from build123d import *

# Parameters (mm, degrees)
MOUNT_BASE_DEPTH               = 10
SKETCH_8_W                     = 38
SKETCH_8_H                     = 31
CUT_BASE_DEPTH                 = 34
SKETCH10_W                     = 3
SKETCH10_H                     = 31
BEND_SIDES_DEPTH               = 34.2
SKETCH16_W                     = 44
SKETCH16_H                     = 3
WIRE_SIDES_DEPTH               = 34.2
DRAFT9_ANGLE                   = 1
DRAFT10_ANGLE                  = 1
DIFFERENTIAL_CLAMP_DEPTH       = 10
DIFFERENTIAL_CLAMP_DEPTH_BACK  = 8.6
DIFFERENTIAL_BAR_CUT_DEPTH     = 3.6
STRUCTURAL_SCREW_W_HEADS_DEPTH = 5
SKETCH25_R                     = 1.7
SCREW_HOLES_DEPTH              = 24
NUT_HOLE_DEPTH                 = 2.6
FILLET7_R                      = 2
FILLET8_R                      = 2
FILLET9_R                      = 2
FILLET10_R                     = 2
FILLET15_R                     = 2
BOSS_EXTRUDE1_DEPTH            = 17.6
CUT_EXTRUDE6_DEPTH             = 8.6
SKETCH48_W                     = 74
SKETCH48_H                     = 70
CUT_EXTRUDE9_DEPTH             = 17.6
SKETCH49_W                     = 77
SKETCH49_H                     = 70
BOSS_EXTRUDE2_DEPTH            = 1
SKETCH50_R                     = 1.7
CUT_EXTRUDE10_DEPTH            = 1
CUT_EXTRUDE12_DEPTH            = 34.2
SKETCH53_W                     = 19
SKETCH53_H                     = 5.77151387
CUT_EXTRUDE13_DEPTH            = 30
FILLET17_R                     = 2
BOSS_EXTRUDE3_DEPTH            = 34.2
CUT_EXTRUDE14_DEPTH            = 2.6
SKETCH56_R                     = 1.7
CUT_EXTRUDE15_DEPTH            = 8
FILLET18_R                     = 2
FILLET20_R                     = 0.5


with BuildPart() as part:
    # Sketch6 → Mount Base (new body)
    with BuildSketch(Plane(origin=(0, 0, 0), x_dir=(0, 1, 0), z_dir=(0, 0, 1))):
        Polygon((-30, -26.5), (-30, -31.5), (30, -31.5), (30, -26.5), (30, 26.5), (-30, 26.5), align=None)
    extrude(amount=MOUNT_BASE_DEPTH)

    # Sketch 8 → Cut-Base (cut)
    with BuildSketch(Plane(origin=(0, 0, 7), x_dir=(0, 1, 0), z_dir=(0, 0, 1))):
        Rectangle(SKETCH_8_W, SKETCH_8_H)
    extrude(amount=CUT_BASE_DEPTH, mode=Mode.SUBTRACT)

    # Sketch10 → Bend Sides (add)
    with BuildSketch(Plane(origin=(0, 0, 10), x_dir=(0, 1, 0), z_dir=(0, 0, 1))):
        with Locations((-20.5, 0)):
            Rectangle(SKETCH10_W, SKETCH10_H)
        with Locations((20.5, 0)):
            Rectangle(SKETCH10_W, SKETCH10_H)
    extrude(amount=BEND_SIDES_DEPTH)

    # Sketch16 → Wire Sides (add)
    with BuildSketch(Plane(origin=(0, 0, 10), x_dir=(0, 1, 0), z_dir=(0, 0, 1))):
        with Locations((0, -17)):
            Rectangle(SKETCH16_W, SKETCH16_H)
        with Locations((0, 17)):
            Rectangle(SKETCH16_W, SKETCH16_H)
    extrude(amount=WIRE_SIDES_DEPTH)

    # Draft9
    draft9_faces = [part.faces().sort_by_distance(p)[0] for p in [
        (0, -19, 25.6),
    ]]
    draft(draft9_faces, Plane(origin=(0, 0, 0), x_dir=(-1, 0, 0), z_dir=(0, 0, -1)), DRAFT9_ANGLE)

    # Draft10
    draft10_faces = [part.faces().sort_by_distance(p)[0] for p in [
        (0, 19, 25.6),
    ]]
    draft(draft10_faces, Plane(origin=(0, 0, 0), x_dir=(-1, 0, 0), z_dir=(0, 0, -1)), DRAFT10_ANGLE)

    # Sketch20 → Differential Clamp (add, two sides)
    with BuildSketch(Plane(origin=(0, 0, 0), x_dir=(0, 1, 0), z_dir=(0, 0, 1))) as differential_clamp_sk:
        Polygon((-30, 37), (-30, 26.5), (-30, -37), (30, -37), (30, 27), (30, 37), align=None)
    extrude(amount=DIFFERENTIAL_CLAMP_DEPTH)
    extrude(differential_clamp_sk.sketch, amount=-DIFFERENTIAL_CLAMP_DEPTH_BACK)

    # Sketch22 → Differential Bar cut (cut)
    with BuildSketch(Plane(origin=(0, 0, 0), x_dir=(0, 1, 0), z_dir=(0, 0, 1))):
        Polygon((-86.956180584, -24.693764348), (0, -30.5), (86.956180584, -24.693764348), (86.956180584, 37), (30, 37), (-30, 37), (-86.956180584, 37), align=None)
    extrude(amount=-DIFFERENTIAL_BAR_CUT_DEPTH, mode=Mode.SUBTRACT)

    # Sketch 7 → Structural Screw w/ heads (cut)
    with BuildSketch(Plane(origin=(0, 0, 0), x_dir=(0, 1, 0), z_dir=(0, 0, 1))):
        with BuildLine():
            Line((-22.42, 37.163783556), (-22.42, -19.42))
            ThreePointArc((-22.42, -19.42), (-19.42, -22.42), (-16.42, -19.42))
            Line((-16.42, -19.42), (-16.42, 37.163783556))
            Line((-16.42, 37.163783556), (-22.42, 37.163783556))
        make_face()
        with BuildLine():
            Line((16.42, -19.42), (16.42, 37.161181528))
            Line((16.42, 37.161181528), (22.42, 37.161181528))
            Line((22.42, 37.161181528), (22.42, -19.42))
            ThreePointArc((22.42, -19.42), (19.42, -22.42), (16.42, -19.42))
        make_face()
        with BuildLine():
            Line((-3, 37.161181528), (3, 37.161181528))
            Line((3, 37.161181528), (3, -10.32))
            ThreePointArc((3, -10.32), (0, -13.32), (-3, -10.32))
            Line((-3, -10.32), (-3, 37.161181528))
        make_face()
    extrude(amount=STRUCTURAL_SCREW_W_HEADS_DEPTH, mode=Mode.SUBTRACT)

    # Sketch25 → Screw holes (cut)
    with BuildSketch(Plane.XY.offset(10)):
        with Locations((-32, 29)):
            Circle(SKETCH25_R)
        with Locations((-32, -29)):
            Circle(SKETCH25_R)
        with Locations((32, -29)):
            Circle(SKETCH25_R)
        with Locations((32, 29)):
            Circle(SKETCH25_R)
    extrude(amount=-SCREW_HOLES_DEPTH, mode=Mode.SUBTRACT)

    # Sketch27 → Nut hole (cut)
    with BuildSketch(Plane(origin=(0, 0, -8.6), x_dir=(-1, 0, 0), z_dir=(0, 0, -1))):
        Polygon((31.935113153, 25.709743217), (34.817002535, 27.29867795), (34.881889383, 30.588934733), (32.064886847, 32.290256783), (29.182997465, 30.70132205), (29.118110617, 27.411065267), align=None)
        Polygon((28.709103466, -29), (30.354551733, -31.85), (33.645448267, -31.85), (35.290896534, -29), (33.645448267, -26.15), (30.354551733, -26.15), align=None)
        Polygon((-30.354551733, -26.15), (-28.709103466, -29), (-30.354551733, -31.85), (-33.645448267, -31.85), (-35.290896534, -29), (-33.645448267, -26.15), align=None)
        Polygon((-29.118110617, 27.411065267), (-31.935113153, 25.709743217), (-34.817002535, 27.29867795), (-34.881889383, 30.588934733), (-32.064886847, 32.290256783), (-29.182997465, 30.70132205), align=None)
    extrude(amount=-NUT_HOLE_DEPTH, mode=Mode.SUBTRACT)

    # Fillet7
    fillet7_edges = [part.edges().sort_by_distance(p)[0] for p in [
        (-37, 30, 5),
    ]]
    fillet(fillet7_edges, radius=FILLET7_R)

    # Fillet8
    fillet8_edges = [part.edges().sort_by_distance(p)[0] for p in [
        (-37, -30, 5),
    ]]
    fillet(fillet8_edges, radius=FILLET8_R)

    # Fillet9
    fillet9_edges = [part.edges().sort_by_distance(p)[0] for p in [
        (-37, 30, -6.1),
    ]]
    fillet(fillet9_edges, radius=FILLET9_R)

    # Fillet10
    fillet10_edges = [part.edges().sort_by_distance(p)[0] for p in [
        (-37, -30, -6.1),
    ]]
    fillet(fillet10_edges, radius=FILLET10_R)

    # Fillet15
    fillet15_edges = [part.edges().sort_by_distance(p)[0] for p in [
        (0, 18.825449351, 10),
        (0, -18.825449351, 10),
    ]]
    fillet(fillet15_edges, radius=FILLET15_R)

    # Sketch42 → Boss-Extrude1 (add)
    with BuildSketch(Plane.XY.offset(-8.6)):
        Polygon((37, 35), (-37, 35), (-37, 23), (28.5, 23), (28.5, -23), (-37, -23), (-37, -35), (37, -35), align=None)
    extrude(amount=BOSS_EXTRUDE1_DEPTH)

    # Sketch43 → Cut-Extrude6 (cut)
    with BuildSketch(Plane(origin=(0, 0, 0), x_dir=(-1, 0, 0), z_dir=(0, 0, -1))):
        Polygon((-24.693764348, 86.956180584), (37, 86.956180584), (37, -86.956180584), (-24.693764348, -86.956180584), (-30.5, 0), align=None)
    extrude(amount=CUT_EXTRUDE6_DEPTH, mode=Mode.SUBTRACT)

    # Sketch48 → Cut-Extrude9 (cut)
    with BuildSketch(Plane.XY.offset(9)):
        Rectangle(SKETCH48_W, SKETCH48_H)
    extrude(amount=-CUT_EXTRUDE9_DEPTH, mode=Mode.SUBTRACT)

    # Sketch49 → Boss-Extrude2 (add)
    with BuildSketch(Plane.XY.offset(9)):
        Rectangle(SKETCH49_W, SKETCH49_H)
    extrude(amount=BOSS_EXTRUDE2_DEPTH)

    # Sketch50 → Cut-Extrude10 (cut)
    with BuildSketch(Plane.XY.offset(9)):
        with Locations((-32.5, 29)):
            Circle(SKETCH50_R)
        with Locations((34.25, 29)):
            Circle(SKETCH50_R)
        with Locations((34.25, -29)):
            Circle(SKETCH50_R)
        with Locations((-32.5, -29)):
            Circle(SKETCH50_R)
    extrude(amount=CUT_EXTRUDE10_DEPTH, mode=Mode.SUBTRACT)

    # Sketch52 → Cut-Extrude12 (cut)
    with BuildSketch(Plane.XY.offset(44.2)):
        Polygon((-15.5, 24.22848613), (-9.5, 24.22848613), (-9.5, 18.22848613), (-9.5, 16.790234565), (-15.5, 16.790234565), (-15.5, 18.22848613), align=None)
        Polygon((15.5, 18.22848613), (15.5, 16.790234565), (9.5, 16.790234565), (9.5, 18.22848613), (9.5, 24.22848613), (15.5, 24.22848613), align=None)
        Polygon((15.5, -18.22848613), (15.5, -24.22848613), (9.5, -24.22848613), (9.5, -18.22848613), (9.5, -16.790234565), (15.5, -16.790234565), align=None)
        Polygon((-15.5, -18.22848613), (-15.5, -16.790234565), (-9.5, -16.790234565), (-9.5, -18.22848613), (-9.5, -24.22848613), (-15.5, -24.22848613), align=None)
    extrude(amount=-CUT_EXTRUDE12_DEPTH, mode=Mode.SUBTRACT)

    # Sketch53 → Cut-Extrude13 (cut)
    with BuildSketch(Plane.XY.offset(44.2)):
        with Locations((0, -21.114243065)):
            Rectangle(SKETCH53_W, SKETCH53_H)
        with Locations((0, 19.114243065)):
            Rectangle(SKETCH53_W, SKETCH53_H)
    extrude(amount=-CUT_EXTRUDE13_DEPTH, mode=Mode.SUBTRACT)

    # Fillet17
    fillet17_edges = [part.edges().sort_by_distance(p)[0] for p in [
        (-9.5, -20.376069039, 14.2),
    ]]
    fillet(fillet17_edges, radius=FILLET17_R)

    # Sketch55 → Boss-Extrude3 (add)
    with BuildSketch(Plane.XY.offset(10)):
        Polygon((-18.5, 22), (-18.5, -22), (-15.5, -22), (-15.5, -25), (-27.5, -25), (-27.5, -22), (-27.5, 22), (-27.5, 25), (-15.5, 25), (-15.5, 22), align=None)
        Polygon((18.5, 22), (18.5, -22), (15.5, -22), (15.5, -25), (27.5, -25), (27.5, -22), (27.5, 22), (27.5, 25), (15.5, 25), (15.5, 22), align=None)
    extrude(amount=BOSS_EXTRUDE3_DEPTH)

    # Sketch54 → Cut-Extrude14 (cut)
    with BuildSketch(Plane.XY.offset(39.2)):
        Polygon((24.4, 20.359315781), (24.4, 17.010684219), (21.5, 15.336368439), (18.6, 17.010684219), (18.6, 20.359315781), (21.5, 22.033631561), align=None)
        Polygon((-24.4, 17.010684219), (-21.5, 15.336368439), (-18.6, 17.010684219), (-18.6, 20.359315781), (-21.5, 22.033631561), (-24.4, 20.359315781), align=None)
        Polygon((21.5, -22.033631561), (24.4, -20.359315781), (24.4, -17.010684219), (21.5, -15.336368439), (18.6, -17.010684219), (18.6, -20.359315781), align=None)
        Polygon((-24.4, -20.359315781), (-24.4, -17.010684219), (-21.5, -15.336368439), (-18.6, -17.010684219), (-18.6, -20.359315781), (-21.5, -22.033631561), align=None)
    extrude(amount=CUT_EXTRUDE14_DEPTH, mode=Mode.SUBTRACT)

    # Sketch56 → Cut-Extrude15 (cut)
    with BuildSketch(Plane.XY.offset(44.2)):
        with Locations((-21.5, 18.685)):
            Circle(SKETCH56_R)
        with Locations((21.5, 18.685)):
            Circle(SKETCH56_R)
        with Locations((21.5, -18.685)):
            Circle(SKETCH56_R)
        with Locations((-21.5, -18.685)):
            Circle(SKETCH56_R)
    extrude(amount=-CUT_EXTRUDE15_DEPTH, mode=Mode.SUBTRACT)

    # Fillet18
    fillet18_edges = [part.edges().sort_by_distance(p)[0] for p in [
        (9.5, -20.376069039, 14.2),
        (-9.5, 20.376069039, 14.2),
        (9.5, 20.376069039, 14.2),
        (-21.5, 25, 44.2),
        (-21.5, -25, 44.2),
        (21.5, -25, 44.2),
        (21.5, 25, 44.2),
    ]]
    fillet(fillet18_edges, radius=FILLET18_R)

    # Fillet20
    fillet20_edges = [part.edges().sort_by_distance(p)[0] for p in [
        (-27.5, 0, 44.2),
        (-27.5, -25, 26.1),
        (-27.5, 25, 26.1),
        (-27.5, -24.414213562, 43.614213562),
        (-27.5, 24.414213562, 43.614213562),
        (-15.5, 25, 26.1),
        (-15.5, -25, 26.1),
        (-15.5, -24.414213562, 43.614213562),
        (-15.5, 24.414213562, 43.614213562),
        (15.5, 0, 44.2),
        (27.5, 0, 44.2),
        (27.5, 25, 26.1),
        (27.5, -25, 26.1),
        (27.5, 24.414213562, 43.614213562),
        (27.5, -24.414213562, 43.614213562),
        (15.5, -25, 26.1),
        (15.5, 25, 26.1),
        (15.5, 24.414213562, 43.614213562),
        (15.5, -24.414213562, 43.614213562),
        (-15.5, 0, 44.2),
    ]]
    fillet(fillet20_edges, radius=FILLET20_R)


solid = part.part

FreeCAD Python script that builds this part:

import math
import FreeCAD as App
import Part
import Sketcher

V = App.Vector
Q = App.Units.Quantity


def edges_at(feature, points):
    """Names of the edges that pass closest to the given points."""
    edges = feature.Shape.Edges
    near = lambda p: min(range(len(edges)), key=lambda i: edges[i].distToShape(Part.Vertex(*p))[0])
    return sorted({f"Edge{near(p) + 1}" for p in points})


def faces_at(feature, points):
    """Names of the faces that lie closest to the given points."""
    faces = feature.Shape.Faces
    near = lambda p: min(range(len(faces)), key=lambda i: faces[i].distToShape(Part.Vertex(*p))[0])
    return sorted({f"Face{near(p) + 1}" for p in points})

doc = App.newDocument("Part")
body = doc.addObject("PartDesign::Body", "Body")

sketch1 = doc.addObject("Sketcher::SketchObject", "Sketch")
body.addObject(sketch1)
sketch1.AttachmentSupport = (doc.XY_Plane, [""])
sketch1.MapMode = "FlatFace"
sketch1.addGeometry([
    Part.LineSegment(V(32, -30, 0), V(32, 30, 0)),
    Part.LineSegment(V(32, 30, 0), V(-26, 30, 0)),
    Part.LineSegment(V(-26, 30, 0), V(-26, -30, 0)),
    Part.LineSegment(V(-26, -30, 0), V(32, -30, 0)),
], False)
sketch1.addConstraint([
    Sketcher.Constraint("Coincident", 0, 2, 1, 1),
    Sketcher.Constraint("Coincident", 1, 2, 2, 1),
    Sketcher.Constraint("Coincident", 2, 2, 3, 1),
    Sketcher.Constraint("Coincident", 3, 2, 0, 1),
    Sketcher.Constraint("Vertical", 0),
    Sketcher.Constraint("Horizontal", 1),
    Sketcher.Constraint("Vertical", 2),
    Sketcher.Constraint("Horizontal", 3),
    Sketcher.Constraint("DistanceX", 1, 2, 1, 1, 58.0),
    Sketcher.Constraint("DistanceY", 0, 1, 0, 2, 60.0),
    Sketcher.Constraint("DistanceY", -1, 1, 0, 2, 30.0),
    Sketcher.Constraint("DistanceX", -1, 1, 0, 2, 31.5),
])
pad1 = doc.addObject("PartDesign::Pad", "Pad")
body.addObject(pad1)
pad1.Profile = sketch1
pad1.Length = 10

sketch2 = doc.addObject("Sketcher::SketchObject", "Sketch001")
body.addObject(sketch2)
sketch2.AttachmentSupport = (doc.XY_Plane, [""])
sketch2.MapMode = "FlatFace"
sketch2.AttachmentOffset = App.Placement(V(0, 0, 7), App.Rotation())
sketch2.addGeometry([
    Part.LineSegment(V(-16, -19, 0), V(16, -19, 0)),
    Part.LineSegment(V(16, -19, 0), V(16, 19, 0)),
    Part.LineSegment(V(16, 19, 0), V(-16, 19, 0)),
    Part.LineSegment(V(-16, 19, 0), V(-16, -19, 0)),
], False)
sketch2.addConstraint([
    Sketcher.Constraint("Coincident", 0, 2, 1, 1),
    Sketcher.Constraint("Coincident", 1, 2, 2, 1),
    Sketcher.Constraint("Coincident", 2, 2, 3, 1),
    Sketcher.Constraint("Coincident", 3, 2, 0, 1),
    Sketcher.Constraint("Horizontal", 0),
    Sketcher.Constraint("Vertical", 1),
    Sketcher.Constraint("Horizontal", 2),
    Sketcher.Constraint("Vertical", 3),
    Sketcher.Constraint("Symmetric", 0, 2, 2, 2, -1, 1),
    Sketcher.Constraint("DistanceX", 0, 1, 0, 2, 31.0),
    Sketcher.Constraint("DistanceY", 1, 1, 1, 2, 38.0),
])
pocket1 = doc.addObject("PartDesign::Pocket", "Pocket")
body.addObject(pocket1)
pocket1.Profile = sketch2
pocket1.Length = 34
pocket1.Reversed = True

sketch3 = doc.addObject("Sketcher::SketchObject", "Sketch002")
body.addObject(sketch3)
sketch3.AttachmentSupport = (doc.XY_Plane, [""])
sketch3.MapMode = "FlatFace"
sketch3.AttachmentOffset = App.Placement(V(0, 0, 10), App.Rotation())
sketch3.addGeometry([
    Part.LineSegment(V(-15.5, -22, 0), V(15.5, -22, 0)),
    Part.LineSegment(V(15.5, -22, 0), V(15.5, -19, 0)),
    Part.LineSegment(V(15.5, -19, 0), V(-15.5, -19, 0)),
    Part.LineSegment(V(-15.5, -19, 0), V(-15.5, -22, 0)),
    Part.LineSegment(V(-15.5, 19, 0), V(15.5, 19, 0)),
    Part.LineSegment(V(15.5, 19, 0), V(15.5, 22, 0)),
    Part.LineSegment(V(15.5, 22, 0), V(-15.5, 22, 0)),
    Part.LineSegment(V(-15.5, 22, 0), V(-15.5, 19, 0)),
], False)
sketch3.addConstraint([
    Sketcher.Constraint("Coincident", 0, 2, 1, 1),
    Sketcher.Constraint("Coincident", 1, 2, 2, 1),
    Sketcher.Constraint("Coincident", 2, 2, 3, 1),
    Sketcher.Constraint("Coincident", 3, 2, 0, 1),
    Sketcher.Constraint("Coincident", 4, 2, 5, 1),
    Sketcher.Constraint("Coincident", 5, 2, 6, 1),
    Sketcher.Constraint("Coincident", 6, 2, 7, 1),
    Sketcher.Constraint("Coincident", 7, 2, 4, 1),
    Sketcher.Constraint("Horizontal", 0),
    Sketcher.Constraint("Vertical", 1),
    Sketcher.Constraint("Horizontal", 2),
    Sketcher.Constraint("Vertical", 3),
    Sketcher.Constraint("Horizontal", 4),
    Sketcher.Constraint("Vertical", 5),
    Sketcher.Constraint("Horizontal", 6),
    Sketcher.Constraint("Vertical", 7),
    Sketcher.Constraint("Symmetric", 2, 2, 4, 2, -1, 1),
    Sketcher.Constraint("Symmetric", 0, 2, 6, 2, -1, 1),
    Sketcher.Constraint("Vertical", 1, 2, 4, 2),
    Sketcher.Constraint("DistanceX", 0, 1, 0, 2, 31.0),
    Sketcher.Constraint("DistanceY", 1, 1, 1, 2, 3.0),
    Sketcher.Constraint("DistanceY", 0, 2, -1, 1, 22.0),
])
pad2 = doc.addObject("PartDesign::Pad", "Pad001")
body.addObject(pad2)
pad2.Profile = sketch3
pad2.Length = 34.2

sketch4 = doc.addObject("Sketcher::SketchObject", "Sketch003")
body.addObject(sketch4)
sketch4.AttachmentSupport = (doc.XY_Plane, [""])
sketch4.MapMode = "FlatFace"
sketch4.AttachmentOffset = App.Placement(V(0, 0, 10), App.Rotation())
sketch4.addGeometry([
    Part.LineSegment(V(15.5, -22, 0), V(18.5, -22, 0)),
    Part.LineSegment(V(18.5, -22, 0), V(18.5, 22, 0)),
    Part.LineSegment(V(18.5, 22, 0), V(15.5, 22, 0)),
    Part.LineSegment(V(15.5, 22, 0), V(15.5, -22, 0)),
    Part.LineSegment(V(-18.5, -22, 0), V(-15.5, -22, 0)),
    Part.LineSegment(V(-15.5, -22, 0), V(-15.5, 22, 0)),
    Part.LineSegment(V(-15.5, 22, 0), V(-18.5, 22, 0)),
    Part.LineSegment(V(-18.5, 22, 0), V(-18.5, -22, 0)),
], False)
sketch4.addConstraint([
    Sketcher.Constraint("Coincident", 0, 2, 1, 1),
    Sketcher.Constraint("Coincident", 1, 2, 2, 1),
    Sketcher.Constraint("Coincident", 2, 2, 3, 1),
    Sketcher.Constraint("Coincident", 3, 2, 0, 1),
    Sketcher.Constraint("Coincident", 4, 2, 5, 1),
    Sketcher.Constraint("Coincident", 5, 2, 6, 1),
    Sketcher.Constraint("Coincident", 6, 2, 7, 1),
    Sketcher.Constraint("Coincident", 7, 2, 4, 1),
    Sketcher.Constraint("Horizontal", 0),
    Sketcher.Constraint("Vertical", 1),
    Sketcher.Constraint("Horizontal", 2),
    Sketcher.Constraint("Vertical", 3),
    Sketcher.Constraint("Horizontal", 4),
    Sketcher.Constraint("Vertical", 5),
    Sketcher.Constraint("Horizontal", 6),
    Sketcher.Constraint("Vertical", 7),
    Sketcher.Constraint("Symmetric", 2, 2, 4, 2, -1, 1),
    Sketcher.Constraint("Symmetric", 0, 2, 6, 2, -1, 1),
    Sketcher.Constraint("Horizontal", 3, 2, 4, 2),
    Sketcher.Constraint("DistanceX", 0, 1, 0, 2, 3.0),
    Sketcher.Constraint("DistanceY", 1, 1, 1, 2, 44.0),
    Sketcher.Constraint("DistanceX", 4, 2, 3, 2, 31.0),
])
pad3 = doc.addObject("PartDesign::Pad", "Pad002")
body.addObject(pad3)
pad3.Profile = sketch4
pad3.Length = 34.2
doc.recompute()

draft = doc.addObject("PartDesign::Draft", "Draft")
body.addObject(draft)
draft.Base = (pad3, faces_at(pad3, [(0, -19, 25.6)]))
draft.NeutralPlane = (doc.XY_Plane, [""])
draft.Angle = 1
draft.Reversed = True
doc.recompute()

draft2 = doc.addObject("PartDesign::Draft", "Draft001")
body.addObject(draft2)
draft2.Base = (draft, faces_at(draft, [(0, 19, 25.6)]))
draft2.NeutralPlane = (doc.XY_Plane, [""])
draft2.Angle = 1
draft2.Reversed = True

sketch5 = doc.addObject("Sketcher::SketchObject", "Sketch004")
body.addObject(sketch5)
sketch5.AttachmentSupport = (doc.XY_Plane, [""])
sketch5.MapMode = "FlatFace"
sketch5.addGeometry([
    Part.LineSegment(V(-37, -30, 0), V(37, -30, 0)),
    Part.LineSegment(V(37, -30, 0), V(37, 30, 0)),
    Part.LineSegment(V(37, 30, 0), V(-37, 30, 0)),
    Part.LineSegment(V(-37, 30, 0), V(-37, -30, 0)),
], False)
sketch5.addConstraint([
    Sketcher.Constraint("Coincident", 0, 2, 1, 1),
    Sketcher.Constraint("Coincident", 1, 2, 2, 1),
    Sketcher.Constraint("Coincident", 2, 2, 3, 1),
    Sketcher.Constraint("Coincident", 3, 2, 0, 1),
    Sketcher.Constraint("Horizontal", 0),
    Sketcher.Constraint("Vertical", 1),
    Sketcher.Constraint("Horizontal", 2),
    Sketcher.Constraint("Vertical", 3),
    Sketcher.Constraint("Symmetric", 0, 2, 2, 2, -1, 1),
    Sketcher.Constraint("DistanceX", 0, 1, 0, 2, 74.0),
    Sketcher.Constraint("DistanceY", 1, 1, 1, 2, 60.0),
])
pad4 = doc.addObject("PartDesign::Pad", "Pad003")
body.addObject(pad4)
pad4.Profile = sketch5
pad4.Type = "TwoLengths"
pad4.Length = 10
pad4.Length2 = 8.6

sketch6 = doc.addObject("Sketcher::SketchObject", "Sketch005")
body.addObject(sketch6)
sketch6.AttachmentSupport = (doc.XY_Plane, [""])
sketch6.MapMode = "FlatFace"
sketch6.addGeometry([
    Part.LineSegment(V(25, -87, 0), V(30, 0, 0)),
    Part.LineSegment(V(30, 0, 0), V(25, 87, 0)),
    Part.LineSegment(V(25, 87, 0), V(-37, 87, 0)),
    Part.LineSegment(V(-37, 87, 0), V(-37, -87, 0)),
    Part.LineSegment(V(-37, -87, 0), V(25, -87, 0)),
], False)
sketch6.addConstraint([
    Sketcher.Constraint("Coincident", 0, 2, 1, 1),
    Sketcher.Constraint("Coincident", 1, 2, 2, 1),
    Sketcher.Constraint("Coincident", 2, 2, 3, 1),
    Sketcher.Constraint("Coincident", 3, 2, 4, 1),
    Sketcher.Constraint("Coincident", 4, 2, 0, 1),
    Sketcher.Constraint("Horizontal", 2),
    Sketcher.Constraint("Vertical", 3),
    Sketcher.Constraint("Horizontal", 4),
    Sketcher.Constraint("Symmetric", 1, 2, 4, 2, -1),
    Sketcher.Constraint("PointOnObject", 0, 2, -1),
    Sketcher.Constraint("DistanceX", 2, 2, -1, 1, 37.0),
    Sketcher.Constraint("DistanceX", -1, 1, 0, 2, 30.5),
    Sketcher.Constraint("DistanceY", 3, 2, 3, 1, 173.912361),
    Sketcher.Constraint("Distance", 0, 87.149812),
])
pocket2 = doc.addObject("PartDesign::Pocket", "Pocket001")
body.addObject(pocket2)
pocket2.Profile = sketch6
pocket2.Length = 3.6

sketch7 = doc.addObject("Sketcher::SketchObject", "Sketch006")
body.addObject(sketch7)
sketch7.AttachmentSupport = (doc.XY_Plane, [""])
sketch7.MapMode = "FlatFace"
sketch7.addGeometry([
    Part.LineSegment(V(-37.2, -22.4, 0), V(19.4, -22.4, 0)),
    Part.ArcOfCircle(Part.Circle(V(19.4, -19.4, 0), V(0, 0, 1), 3), math.radians(-90), math.radians(90)),
    Part.LineSegment(V(19.4, -16.4, 0), V(-37.2, -16.4, 0)),
    Part.LineSegment(V(-37.2, -16.4, 0), V(-37.2, -22.4, 0)),
    Part.LineSegment(V(-37.2, 16.4, 0), V(19.4, 16.4, 0)),
    Part.ArcOfCircle(Part.Circle(V(19.4, 19.4, 0), V(0, 0, 1), 3), math.radians(-90), math.radians(90)),
    Part.LineSegment(V(19.4, 22.4, 0), V(-37.2, 22.4, 0)),
    Part.LineSegment(V(-37.2, 22.4, 0), V(-37.2, 16.4, 0)),
    Part.LineSegment(V(-37.2, 3, 0), V(-37.2, -3, 0)),
    Part.LineSegment(V(-37.2, -3, 0), V(10.3, -3, 0)),
    Part.ArcOfCircle(Part.Circle(V(10.3, 0, 0), V(0, 0, 1), 3), math.radians(-90), math.radians(90)),
    Part.LineSegment(V(10.3, 3, 0), V(-37.2, 3, 0)),
], False)
sketch7.addConstraint([
    Sketcher.Constraint("Tangent", 0, 2, 1, 1),
    Sketcher.Constraint("Tangent", 1, 2, 2, 1),
    Sketcher.Constraint("Coincident", 2, 2, 3, 1),
    Sketcher.Constraint("Coincident", 3, 2, 0, 1),
    Sketcher.Constraint("Tangent", 4, 2, 5, 1),
    Sketcher.Constraint("Tangent", 5, 2, 6, 1),
    Sketcher.Constraint("Coincident", 6, 2, 7, 1),
    Sketcher.Constraint("Coincident", 7, 2, 4, 1),
    Sketcher.Constraint("Coincident", 8, 2, 9, 1),
    Sketcher.Constraint("Tangent", 9, 2, 10, 1),
    Sketcher.Constraint("Tangent", 10, 2, 11, 1),
    Sketcher.Constraint("Coincident", 11, 2, 8, 1),
    Sketcher.Constraint("Horizontal", 0),
    Sketcher.Constraint("Horizontal", 2),
    Sketcher.Constraint("Vertical", 3),
    Sketcher.Constraint("Horizontal", 4),
    Sketcher.Constraint("Horizontal", 6),
    Sketcher.Constraint("Vertical", 7),
    Sketcher.Constraint("Vertical", 8),
    Sketcher.Constraint("Horizontal", 9),
    Sketcher.Constraint("Horizontal", 11),
    Sketcher.Constraint("Equal", 1, 5),
    Sketcher.Constraint("Equal", 5, 10),
    Sketcher.Constraint("Symmetric", 1, 3, 5, 3, -1),
    Sketcher.Constraint("PointOnObject", 10, 3, -1),
    Sketcher.Constraint("Vertical", 7, 2, 8, 2),
    Sketcher.Constraint("Radius", 1, 3.0),
    Sketcher.Constraint("DistanceX", 10, 3, 1, 3, 9.1),
    Sketcher.Constraint("DistanceX", -1, 1, 1, 3, 19.42),
    Sketcher.Constraint("DistanceY", 1, 3, -1, 1, 19.42),
    Sketcher.Constraint("DistanceX", 4, 1, 4, 2, 56.581182),
    Sketcher.Constraint("DistanceX", 0, 1, 0, 2, 56.583784),
])
pocket3 = doc.addObject("PartDesign::Pocket", "Pocket002")
body.addObject(pocket3)
pocket3.Profile = sketch7
pocket3.Length = 5
pocket3.Reversed = True

sketch8 = doc.addObject("Sketcher::SketchObject", "Sketch007")
body.addObject(sketch8)
sketch8.AttachmentSupport = (doc.XY_Plane, [""])
sketch8.MapMode = "FlatFace"
sketch8.AttachmentOffset = App.Placement(V(0, 0, 10), App.Rotation())
sketch8.addGeometry([
    Part.Circle(V(-32, 29, 0), V(0, 0, 1), 1.7),
    Part.Circle(V(-32, -29, 0), V(0, 0, 1), 1.7),
    Part.Circle(V(32, -29, 0), V(0, 0, 1), 1.7),
    Part.Circle(V(32, 29, 0), V(0, 0, 1), 1.7),
], False)
sketch8.addConstraint([
    Sketcher.Constraint("Equal", 0, 1),
    Sketcher.Constraint("Equal", 1, 2),
    Sketcher.Constraint("Equal", 2, 3),
    Sketcher.Constraint("Symmetric", 0, 3, 2, 3, -1, 1),
    Sketcher.Constraint("Symmetric", 1, 3, 3, 3, -1, 1),
    Sketcher.Constraint("Symmetric", 1, 3, 2, 3, -2),
    Sketcher.Constraint("Diameter", 0, 3.4),
    Sketcher.Constraint("DistanceX", 0, 3, -1, 1, 32.0),
    Sketcher.Constraint("DistanceY", -1, 1, 0, 3, 29.0),
])
pocket4 = doc.addObject("PartDesign::Pocket", "Pocket003")
body.addObject(pocket4)
pocket4.Profile = sketch8
pocket4.Length = 24

sketch9 = doc.addObject("Sketcher::SketchObject", "Sketch008")
body.addObject(sketch9)
sketch9.AttachmentSupport = (doc.XY_Plane, [""])
sketch9.MapMode = "FlatFace"
sketch9.AttachmentOffset = App.Placement(V(0, 0, -8.6), App.Rotation())
sketch9.addGeometry([
    Part.LineSegment(V(-31.9, 25.7, 0), V(-34.8, 27.3, 0)),
    Part.LineSegment(V(-34.8, 27.3, 0), V(-34.9, 30.6, 0)),
    Part.LineSegment(V(-34.9, 30.6, 0), V(-32.1, 32.3, 0)),
    Part.LineSegment(V(-32.1, 32.3, 0), V(-29.2, 30.7, 0)),
    Part.LineSegment(V(-29.2, 30.7, 0), V(-29.1, 27.4, 0)),
    Part.LineSegment(V(-29.1, 27.4, 0), V(-31.9, 25.7, 0)),
    Part.LineSegment(V(-28.7, -29, 0), V(-30.4, -31.9, 0)),
    Part.LineSegment(V(-30.4, -31.9, 0), V(-33.6, -31.9, 0)),
    Part.LineSegment(V(-33.6, -31.9, 0), V(-35.3, -29, 0)),
    Part.LineSegment(V(-35.3, -29, 0), V(-33.6, -26.1, 0)),
    Part.LineSegment(V(-33.6, -26.1, 0), V(-30.4, -26.1, 0)),
    Part.LineSegment(V(-30.4, -26.1, 0), V(-28.7, -29, 0)),
    Part.LineSegment(V(28.7, -29, 0), V(30.4, -26.1, 0)),
    Part.LineSegment(V(30.4, -26.1, 0), V(33.6, -26.1, 0)),
    Part.LineSegment(V(33.6, -26.1, 0), V(35.3, -29, 0)),
    Part.LineSegment(V(35.3, -29, 0), V(33.6, -31.9, 0)),
    Part.LineSegment(V(33.6, -31.9, 0), V(30.4, -31.9, 0)),
    Part.LineSegment(V(30.4, -31.9, 0), V(28.7, -29, 0)),
    Part.LineSegment(V(31.9, 25.7, 0), V(29.1, 27.4, 0)),
    Part.LineSegment(V(29.1, 27.4, 0), V(29.2, 30.7, 0)),
    Part.LineSegment(V(29.2, 30.7, 0), V(32.1, 32.3, 0)),
    Part.LineSegment(V(32.1, 32.3, 0), V(34.9, 30.6, 0)),
    Part.LineSegment(V(34.9, 30.6, 0), V(34.8, 27.3, 0)),
    Part.LineSegment(V(34.8, 27.3, 0), V(31.9, 25.7, 0)),
], False)
sketch9.addConstraint([
    Sketcher.Constraint("Coincident", 0, 2, 1, 1),
    Sketcher.Constraint("Coincident", 1, 2, 2, 1),
    Sketcher.Constraint("Coincident", 2, 2, 3, 1),
    Sketcher.Constraint("Coincident", 3, 2, 4, 1),
    Sketcher.Constraint("Coincident", 4, 2, 5, 1),
    Sketcher.Constraint("Coincident", 5, 2, 0, 1),
    Sketcher.Constraint("Coincident", 6, 2, 7, 1),
    Sketcher.Constraint("Coincident", 7, 2, 8, 1),
    Sketcher.Constraint("Coincident", 8, 2, 9, 1),
    Sketcher.Constraint("Coincident", 9, 2, 10, 1),
    Sketcher.Constraint("Coincident", 10, 2, 11, 1),
    Sketcher.Constraint("Coincident", 11, 2, 6, 1),
    Sketcher.Constraint("Coincident", 12, 2, 13, 1),
    Sketcher.Constraint("Coincident", 13, 2, 14, 1),
    Sketcher.Constraint("Coincident", 14, 2, 15, 1),
    Sketcher.Constraint("Coincident", 15, 2, 16, 1),
    Sketcher.Constraint("Coincident", 16, 2, 17, 1),
    Sketcher.Constraint("Coincident", 17, 2, 12, 1),
    Sketcher.Constraint("Coincident", 18, 2, 19, 1),
    Sketcher.Constraint("Coincident", 19, 2, 20, 1),
    Sketcher.Constraint("Coincident", 20, 2, 21, 1),
    Sketcher.Constraint("Coincident", 21, 2, 22, 1),
    Sketcher.Constraint("Coincident", 22, 2, 23, 1),
    Sketcher.Constraint("Coincident", 23, 2, 18, 1),
    Sketcher.Constraint("Horizontal", 7),
    Sketcher.Constraint("Horizontal", 10),
    Sketcher.Constraint("Horizontal", 13),
    Sketcher.Constraint("Horizontal", 16),
    Sketcher.Constraint("Symmetric", 10, 2, 12, 2, -2),
    Sketcher.Constraint("Symmetric", 8, 2, 14, 2, -2),
    Sketcher.Constraint("Symmetric", 7, 2, 15, 2, -2),
    Sketcher.Constraint("Symmetric", 11, 2, 17, 2, -2),
    Sketcher.Constraint("Symmetric", 4, 2, 18, 2, -2),
    Sketcher.Constraint("Symmetric", 3, 2, 19, 2, -2),
    Sketcher.Constraint("Symmetric", 2, 2, 20, 2, -2),
    Sketcher.Constraint("Symmetric", 1, 2, 21, 2, -2),
    Sketcher.Constraint("Symmetric", 0, 2, 22, 2, -2),
    Sketcher.Constraint("Symmetric", 5, 2, 23, 2, -2),
    Sketcher.Constraint("Parallel", 0, 3),
    Sketcher.Constraint("Parallel", 1, 4),
    Sketcher.Constraint("Parallel", 2, 5),
    Sketcher.Constraint("Parallel", 6, 9),
    Sketcher.Constraint("Parallel", 8, 11),
    Sketcher.Constraint("Parallel", 9, 12),
    Sketcher.Constraint("Parallel", 11, 14),
    Sketcher.Constraint("Parallel", 14, 17),
    Sketcher.Constraint("Horizontal", 8, 2, 11, 2),
    Sketcher.Constraint("Vertical", 7, 2, 9, 2),
    Sketcher.Constraint("Equal", 0, 1),
    Sketcher.Constraint("Equal", 1, 2),
    Sketcher.Constraint("Equal", 2, 3),
    Sketcher.Constraint("Equal", 5, 6),
    Sketcher.Constraint("Angle", 6, Q("-120 deg")),
    Sketcher.Constraint("DistanceY", 8, 2, -1, 1, 29.0),
    Sketcher.Constraint("DistanceX", 9, 2, 12, 2, 64.0),
    Sketcher.Constraint("DistanceY", 7, 2, 9, 2, 5.7),
    Sketcher.Constraint("DistanceX", 7, 2, 7, 1, 3.290897),
    Sketcher.Constraint("DistanceX", 1, 2, -1, 1, 34.881889),
    Sketcher.Constraint("DistanceX", 4, 2, -1, 1, 29.118111),
    Sketcher.Constraint("DistanceY", 0, 2, 2, 2, 4.991579),
    Sketcher.Constraint("DistanceX", 2, 2, 3, 2, 2.881889),
    Sketcher.Constraint("DistanceY", -1, 1, 0, 2, 27.298678),
])
pocket5 = doc.addObject("PartDesign::Pocket", "Pocket004")
body.addObject(pocket5)
pocket5.Profile = sketch9
pocket5.Length = 2.6
pocket5.Reversed = True
doc.recompute()

fillet = doc.addObject("PartDesign::Fillet", "Fillet")
body.addObject(fillet)
fillet.Base = (pocket5, edges_at(pocket5, [(-37, 30, 5)]))
fillet.Radius = 2
doc.recompute()

fillet2 = doc.addObject("PartDesign::Fillet", "Fillet001")
body.addObject(fillet2)
fillet2.Base = (fillet, edges_at(fillet, [(-37, -30, 5)]))
fillet2.Radius = 2
doc.recompute()

fillet3 = doc.addObject("PartDesign::Fillet", "Fillet002")
body.addObject(fillet3)
fillet3.Base = (fillet2, edges_at(fillet2, [(-37, 30, -6.1)]))
fillet3.Radius = 2
doc.recompute()

fillet4 = doc.addObject("PartDesign::Fillet", "Fillet003")
body.addObject(fillet4)
fillet4.Base = (fillet3, edges_at(fillet3, [(-37, -30, -6.1)]))
fillet4.Radius = 2
doc.recompute()

fillet5 = doc.addObject("PartDesign::Fillet", "Fillet004")
body.addObject(fillet5)
fillet5.Base = (fillet4, edges_at(fillet4, [(0, 18.825, 10), (0, -18.825, 10)]))
fillet5.Radius = 2

sketch10 = doc.addObject("Sketcher::SketchObject", "Sketch009")
body.addObject(sketch10)
sketch10.AttachmentSupport = (doc.XY_Plane, [""])
sketch10.MapMode = "FlatFace"
sketch10.AttachmentOffset = App.Placement(V(0, 0, -8.6), App.Rotation())
sketch10.addGeometry([
    Part.LineSegment(V(37, 35, 0), V(-37, 35, 0)),
    Part.LineSegment(V(-37, 35, 0), V(-37, 23, 0)),
    Part.LineSegment(V(-37, 23, 0), V(28, 23, 0)),
    Part.LineSegment(V(28, 23, 0), V(28, -23, 0)),
    Part.LineSegment(V(28, -23, 0), V(-37, -23, 0)),
    Part.LineSegment(V(-37, -23, 0), V(-37, -35, 0)),
    Part.LineSegment(V(-37, -35, 0), V(37, -35, 0)),
    Part.LineSegment(V(37, -35, 0), V(37, 35, 0)),
], False)
sketch10.addConstraint([
    Sketcher.Constraint("Coincident", 0, 2, 1, 1),
    Sketcher.Constraint("Coincident", 1, 2, 2, 1),
    Sketcher.Constraint("Coincident", 2, 2, 3, 1),
    Sketcher.Constraint("Coincident", 3, 2, 4, 1),
    Sketcher.Constraint("Coincident", 4, 2, 5, 1),
    Sketcher.Constraint("Coincident", 5, 2, 6, 1),
    Sketcher.Constraint("Coincident", 6, 2, 7, 1),
    Sketcher.Constraint("Coincident", 7, 2, 0, 1),
    Sketcher.Constraint("Horizontal", 0),
    Sketcher.Constraint("Vertical", 1),
    Sketcher.Constraint("Horizontal", 2),
    Sketcher.Constraint("Vertical", 3),
    Sketcher.Constraint("Horizontal", 4),
    Sketcher.Constraint("Vertical", 5),
    Sketcher.Constraint("Horizontal", 6),
    Sketcher.Constraint("Vertical", 7),
    Sketcher.Constraint("Symmetric", 0, 2, 6, 2, -1, 1),
    Sketcher.Constraint("Symmetric", 1, 2, 4, 2, -1),
    Sketcher.Constraint("DistanceX", 0, 2, 0, 1, 74.0),
    Sketcher.Constraint("DistanceY", 1, 2, 1, 1, 12.0),
    Sketcher.Constraint("DistanceY", 3, 2, 3, 1, 46.0),
    Sketcher.Constraint("DistanceX", 2, 1, 2, 2, 65.5),
])
pad5 = doc.addObject("PartDesign::Pad", "Pad004")
body.addObject(pad5)
pad5.Profile = sketch10
pad5.Length = 17.6

sketch11 = doc.addObject("Sketcher::SketchObject", "Sketch010")
body.addObject(sketch11)
sketch11.AttachmentSupport = (doc.XY_Plane, [""])
sketch11.MapMode = "FlatFace"
sketch11.addGeometry([
    Part.LineSegment(V(-37, 87, 0), V(25, 87, 0)),
    Part.LineSegment(V(25, 87, 0), V(30, 0, 0)),
    Part.LineSegment(V(30, 0, 0), V(25, -87, 0)),
    Part.LineSegment(V(25, -87, 0), V(-37, -87, 0)),
    Part.LineSegment(V(-37, -87, 0), V(-37, 87, 0)),
], False)
sketch11.addConstraint([
    Sketcher.Constraint("Coincident", 0, 2, 1, 1),
    Sketcher.Constraint("Coincident", 1, 2, 2, 1),
    Sketcher.Constraint("Coincident", 2, 2, 3, 1),
    Sketcher.Constraint("Coincident", 3, 2, 4, 1),
    Sketcher.Constraint("Coincident", 4, 2, 0, 1),
    Sketcher.Constraint("Horizontal", 0),
    Sketcher.Constraint("Horizontal", 3),
    Sketcher.Constraint("Vertical", 4),
    Sketcher.Constraint("Symmetric", 0, 2, 2, 2, -1),
    Sketcher.Constraint("PointOnObject", 1, 2, -1),
    Sketcher.Constraint("DistanceX", 3, 2, -1, 1, 37.0),
    Sketcher.Constraint("DistanceX", -1, 1, 1, 2, 30.5),
    Sketcher.Constraint("DistanceY", 4, 1, 4, 2, 173.912361),
    Sketcher.Constraint("Distance", 1, 87.149812),
])
pocket6 = doc.addObject("PartDesign::Pocket", "Pocket005")
body.addObject(pocket6)
pocket6.Profile = sketch11
pocket6.Length = 8.6

sketch12 = doc.addObject("Sketcher::SketchObject", "Sketch011")
body.addObject(sketch12)
sketch12.AttachmentSupport = (doc.XY_Plane, [""])
sketch12.MapMode = "FlatFace"
sketch12.AttachmentOffset = App.Placement(V(0, 0, 9), App.Rotation())
sketch12.addGeometry([
    Part.LineSegment(V(-37, 35, 0), V(-37, -35, 0)),
    Part.LineSegment(V(-37, -35, 0), V(37, -35, 0)),
    Part.LineSegment(V(37, -35, 0), V(37, 35, 0)),
    Part.LineSegment(V(37, 35, 0), V(-37, 35, 0)),
], False)
sketch12.addConstraint([
    Sketcher.Constraint("Coincident", 0, 2, 1, 1),
    Sketcher.Constraint("Coincident", 1, 2, 2, 1),
    Sketcher.Constraint("Coincident", 2, 2, 3, 1),
    Sketcher.Constraint("Coincident", 3, 2, 0, 1),
    Sketcher.Constraint("Vertical", 0),
    Sketcher.Constraint("Horizontal", 1),
    Sketcher.Constraint("Vertical", 2),
    Sketcher.Constraint("Horizontal", 3),
    Sketcher.Constraint("Symmetric", 0, 2, 2, 2, -1, 1),
    Sketcher.Constraint("DistanceX", 1, 1, 1, 2, 74.0),
    Sketcher.Constraint("DistanceY", 0, 2, 0, 1, 70.0),
])
pocket7 = doc.addObject("PartDesign::Pocket", "Pocket006")
body.addObject(pocket7)
pocket7.Profile = sketch12
pocket7.Length = 17.6

sketch13 = doc.addObject("Sketcher::SketchObject", "Sketch012")
body.addObject(sketch13)
sketch13.AttachmentSupport = (doc.XY_Plane, [""])
sketch13.MapMode = "FlatFace"
sketch13.AttachmentOffset = App.Placement(V(0, 0, 9), App.Rotation())
sketch13.addGeometry([
    Part.LineSegment(V(-38, 35, 0), V(-38, -35, 0)),
    Part.LineSegment(V(-38, -35, 0), V(38, -35, 0)),
    Part.LineSegment(V(38, -35, 0), V(38, 35, 0)),
    Part.LineSegment(V(38, 35, 0), V(-38, 35, 0)),
], False)
sketch13.addConstraint([
    Sketcher.Constraint("Coincident", 0, 2, 1, 1),
    Sketcher.Constraint("Coincident", 1, 2, 2, 1),
    Sketcher.Constraint("Coincident", 2, 2, 3, 1),
    Sketcher.Constraint("Coincident", 3, 2, 0, 1),
    Sketcher.Constraint("Vertical", 0),
    Sketcher.Constraint("Horizontal", 1),
    Sketcher.Constraint("Vertical", 2),
    Sketcher.Constraint("Horizontal", 3),
    Sketcher.Constraint("Symmetric", 0, 2, 2, 2, -1, 1),
    Sketcher.Constraint("DistanceX", 1, 1, 1, 2, 77.0),
    Sketcher.Constraint("DistanceY", 0, 2, 0, 1, 70.0),
])
pad6 = doc.addObject("PartDesign::Pad", "Pad005")
body.addObject(pad6)
pad6.Profile = sketch13
pad6.Length = 1

sketch14 = doc.addObject("Sketcher::SketchObject", "Sketch013")
body.addObject(sketch14)
sketch14.AttachmentSupport = (doc.XY_Plane, [""])
sketch14.MapMode = "FlatFace"
sketch14.AttachmentOffset = App.Placement(V(0, 0, 9), App.Rotation())
sketch14.addGeometry([
    Part.Circle(V(-32.5, 29, 0), V(0, 0, 1), 1.7),
    Part.Circle(V(34.2, 29, 0), V(0, 0, 1), 1.7),
    Part.Circle(V(34.2, -29, 0), V(0, 0, 1), 1.7),
    Part.Circle(V(-32.5, -29, 0), V(0, 0, 1), 1.7),
], False)
sketch14.addConstraint([
    Sketcher.Constraint("Equal", 0, 1),
    Sketcher.Constraint("Equal", 1, 2),
    Sketcher.Constraint("Equal", 2, 3),
    Sketcher.Constraint("Symmetric", 1, 3, 2, 3, -1),
    Sketcher.Constraint("Symmetric", 0, 3, 3, 3, -1),
    Sketcher.Constraint("Horizontal", 0, 3, 1, 3),
    Sketcher.Constraint("Diameter", 0, 3.4),
    Sketcher.Constraint("DistanceY", -1, 1, 0, 3, 29.0),
    Sketcher.Constraint("DistanceX", 0, 3, -1, 1, 32.5),
    Sketcher.Constraint("DistanceX", -1, 1, 1, 3, 34.25),
])
pocket8 = doc.addObject("PartDesign::Pocket", "Pocket007")
body.addObject(pocket8)
pocket8.Profile = sketch14
pocket8.Length = 1
pocket8.Reversed = True

sketch15 = doc.addObject("Sketcher::SketchObject", "Sketch014")
body.addObject(sketch15)
sketch15.AttachmentSupport = (doc.XY_Plane, [""])
sketch15.MapMode = "FlatFace"
sketch15.AttachmentOffset = App.Placement(V(0, 0, 44.2), App.Rotation())
sketch15.addGeometry([
    Part.LineSegment(V(-10, 24, 0), V(-16, 24, 0)),
    Part.LineSegment(V(-16, 24, 0), V(-16, 17, 0)),
    Part.LineSegment(V(-16, 17, 0), V(-10, 17, 0)),
    Part.LineSegment(V(-10, 17, 0), V(-10, 24, 0)),
    Part.LineSegment(V(16, 17, 0), V(16, 24, 0)),
    Part.LineSegment(V(16, 24, 0), V(10, 24, 0)),
    Part.LineSegment(V(10, 24, 0), V(10, 17, 0)),
    Part.LineSegment(V(10, 17, 0), V(16, 17, 0)),
    Part.LineSegment(V(16, -24, 0), V(16, -17, 0)),
    Part.LineSegment(V(16, -17, 0), V(10, -17, 0)),
    Part.LineSegment(V(10, -17, 0), V(10, -24, 0)),
    Part.LineSegment(V(10, -24, 0), V(16, -24, 0)),
    Part.LineSegment(V(-16, -17, 0), V(-16, -24, 0)),
    Part.LineSegment(V(-16, -24, 0), V(-10, -24, 0)),
    Part.LineSegment(V(-10, -24, 0), V(-10, -17, 0)),
    Part.LineSegment(V(-10, -17, 0), V(-16, -17, 0)),
], False)
sketch15.addConstraint([
    Sketcher.Constraint("Coincident", 0, 2, 1, 1),
    Sketcher.Constraint("Coincident", 1, 2, 2, 1),
    Sketcher.Constraint("Coincident", 2, 2, 3, 1),
    Sketcher.Constraint("Coincident", 3, 2, 0, 1),
    Sketcher.Constraint("Coincident", 4, 2, 5, 1),
    Sketcher.Constraint("Coincident", 5, 2, 6, 1),
    Sketcher.Constraint("Coincident", 6, 2, 7, 1),
    Sketcher.Constraint("Coincident", 7, 2, 4, 1),
    Sketcher.Constraint("Coincident", 8, 2, 9, 1),
    Sketcher.Constraint("Coincident", 9, 2, 10, 1),
    Sketcher.Constraint("Coincident", 10, 2, 11, 1),
    Sketcher.Constraint("Coincident", 11, 2, 8, 1),
    Sketcher.Constraint("Coincident", 12, 2, 13, 1),
    Sketcher.Constraint("Coincident", 13, 2, 14, 1),
    Sketcher.Constraint("Coincident", 14, 2, 15, 1),
    Sketcher.Constraint("Coincident", 15, 2, 12, 1),
    Sketcher.Constraint("Horizontal", 0),
    Sketcher.Constraint("Vertical", 1),
    Sketcher.Constraint("Horizontal", 2),
    Sketcher.Constraint("Vertical", 3),
    Sketcher.Constraint("Vertical", 4),
    Sketcher.Constraint("Horizontal", 5),
    Sketcher.Constraint("Vertical", 6),
    Sketcher.Constraint("Horizontal", 7),
    Sketcher.Constraint("Vertical", 8),
    Sketcher.Constraint("Horizontal", 9),
    Sketcher.Constraint("Vertical", 10),
    Sketcher.Constraint("Horizontal", 11),
    Sketcher.Constraint("Vertical", 12),
    Sketcher.Constraint("Horizontal", 13),
    Sketcher.Constraint("Vertical", 14),
    Sketcher.Constraint("Horizontal", 15),
    Sketcher.Constraint("Symmetric", 1, 2, 8, 2, -1, 1),
    Sketcher.Constraint("Symmetric", 3, 2, 10, 2, -1, 1),
    Sketcher.Constraint("Symmetric", 4, 2, 12, 2, -1, 1),
    Sketcher.Constraint("Symmetric", 6, 2, 14, 2, -1, 1),
    Sketcher.Constraint("Symmetric", 0, 2, 4, 2, -2),
    Sketcher.Constraint("Symmetric", 2, 2, 6, 2, -2),
    Sketcher.Constraint("DistanceX", 0, 2, 0, 1, 6.0),
    Sketcher.Constraint("DistanceX", 3, 2, 4, 2, 25.0),
    Sketcher.Constraint("DistanceY", 1, 2, 1, 1, 7.438252),
    Sketcher.Constraint("DistanceY", 8, 2, 7, 2, 33.580469),
])
pocket9 = doc.addObject("PartDesign::Pocket", "Pocket008")
body.addObject(pocket9)
pocket9.Profile = sketch15
pocket9.Length = 34.2

sketch16 = doc.addObject("Sketcher::SketchObject", "Sketch015")
body.addObject(sketch16)
sketch16.AttachmentSupport = (doc.XY_Plane, [""])
sketch16.MapMode = "FlatFace"
sketch16.AttachmentOffset = App.Placement(V(0, 0, 44.2), App.Rotation())
sketch16.addGeometry([
    Part.LineSegment(V(-10, -18, 0), V(-10, -24, 0)),
    Part.LineSegment(V(-10, -24, 0), V(10, -24, 0)),
    Part.LineSegment(V(10, -24, 0), V(10, -18, 0)),
    Part.LineSegment(V(10, -18, 0), V(-10, -18, 0)),
    Part.LineSegment(V(-10, 22, 0), V(-10, 16, 0)),
    Part.LineSegment(V(-10, 16, 0), V(10, 16, 0)),
    Part.LineSegment(V(10, 16, 0), V(10, 22, 0)),
    Part.LineSegment(V(10, 22, 0), V(-10, 22, 0)),
], False)
sketch16.addConstraint([
    Sketcher.Constraint("Coincident", 0, 2, 1, 1),
    Sketcher.Constraint("Coincident", 1, 2, 2, 1),
    Sketcher.Constraint("Coincident", 2, 2, 3, 1),
    Sketcher.Constraint("Coincident", 3, 2, 0, 1),
    Sketcher.Constraint("Coincident", 4, 2, 5, 1),
    Sketcher.Constraint("Coincident", 5, 2, 6, 1),
    Sketcher.Constraint("Coincident", 6, 2, 7, 1),
    Sketcher.Constraint("Coincident", 7, 2, 4, 1),
    Sketcher.Constraint("Vertical", 0),
    Sketcher.Constraint("Horizontal", 1),
    Sketcher.Constraint("Vertical", 2),
    Sketcher.Constraint("Horizontal", 3),
    Sketcher.Constraint("Vertical", 4),
    Sketcher.Constraint("Horizontal", 5),
    Sketcher.Constraint("Vertical", 6),
    Sketcher.Constraint("Horizontal", 7),
    Sketcher.Constraint("Vertical", 3, 2, 4, 2),
    Sketcher.Constraint("Vertical", 2, 2, 5, 2),
    Sketcher.Constraint("Equal", 2, 4),
    Sketcher.Constraint("DistanceX", 1, 1, 1, 2, 19.0),
    Sketcher.Constraint("DistanceY", 0, 2, -1, 1, 24.0),
    Sketcher.Constraint("DistanceY", -1, 1, 6, 2, 22.0),
    Sketcher.Constraint("DistanceX", 0, 2, -1, 1, 9.5),
    Sketcher.Constraint("DistanceY", 0, 2, 0, 1, 5.771514),
])
pocket10 = doc.addObject("PartDesign::Pocket", "Pocket009")
body.addObject(pocket10)
pocket10.Profile = sketch16
pocket10.Length = 30
doc.recompute()

fillet6 = doc.addObject("PartDesign::Fillet", "Fillet005")
body.addObject(fillet6)
fillet6.Base = (pocket10, edges_at(pocket10, [(-9.5, -20.376, 14.2)]))
fillet6.Radius = 2

sketch17 = doc.addObject("Sketcher::SketchObject", "Sketch016")
body.addObject(sketch17)
sketch17.AttachmentSupport = (doc.XY_Plane, [""])
sketch17.MapMode = "FlatFace"
sketch17.AttachmentOffset = App.Placement(V(0, 0, 10), App.Rotation())
sketch17.addGeometry([
    Part.LineSegment(V(-18.5, -22, 0), V(-18.5, 22, 0)),
    Part.LineSegment(V(-18.5, 22, 0), V(-15.5, 22, 0)),
    Part.LineSegment(V(-15.5, 22, 0), V(-15.5, 25, 0)),
    Part.LineSegment(V(-15.5, 25, 0), V(-27.5, 25, 0)),
    Part.LineSegment(V(-27.5, 25, 0), V(-27.5, -25, 0)),
    Part.LineSegment(V(-27.5, -25, 0), V(-15.5, -25, 0)),
    Part.LineSegment(V(-15.5, -25, 0), V(-15.5, -22, 0)),
    Part.LineSegment(V(-15.5, -22, 0), V(-18.5, -22, 0)),
    Part.LineSegment(V(18.5, 22, 0), V(18.5, -22, 0)),
    Part.LineSegment(V(18.5, -22, 0), V(15.5, -22, 0)),
    Part.LineSegment(V(15.5, -22, 0), V(15.5, -25, 0)),
    Part.LineSegment(V(15.5, -25, 0), V(27.5, -25, 0)),
    Part.LineSegment(V(27.5, -25, 0), V(27.5, 25, 0)),
    Part.LineSegment(V(27.5, 25, 0), V(15.5, 25, 0)),
    Part.LineSegment(V(15.5, 25, 0), V(15.5, 22, 0)),
    Part.LineSegment(V(15.5, 22, 0), V(18.5, 22, 0)),
], False)
sketch17.addConstraint([
    Sketcher.Constraint("Coincident", 0, 2, 1, 1),
    Sketcher.Constraint("Coincident", 1, 2, 2, 1),
    Sketcher.Constraint("Coincident", 2, 2, 3, 1),
    Sketcher.Constraint("Coincident", 3, 2, 4, 1),
    Sketcher.Constraint("Coincident", 4, 2, 5, 1),
    Sketcher.Constraint("Coincident", 5, 2, 6, 1),
    Sketcher.Constraint("Coincident", 6, 2, 7, 1),
    Sketcher.Constraint("Coincident", 7, 2, 0, 1),
    Sketcher.Constraint("Coincident", 8, 2, 9, 1),
    Sketcher.Constraint("Coincident", 9, 2, 10, 1),
    Sketcher.Constraint("Coincident", 10, 2, 11, 1),
    Sketcher.Constraint("Coincident", 11, 2, 12, 1),
    Sketcher.Constraint("Coincident", 12, 2, 13, 1),
    Sketcher.Constraint("Coincident", 13, 2, 14, 1),
    Sketcher.Constraint("Coincident", 14, 2, 15, 1),
    Sketcher.Constraint("Coincident", 15, 2, 8, 1),
    Sketcher.Constraint("Vertical", 0),
    Sketcher.Constraint("Horizontal", 1),
    Sketcher.Constraint("Vertical", 2),
    Sketcher.Constraint("Horizontal", 3),
    Sketcher.Constraint("Vertical", 4),
    Sketcher.Constraint("Horizontal", 5),
    Sketcher.Constraint("Vertical", 6),
    Sketcher.Constraint("Horizontal", 7),
    Sketcher.Constraint("Vertical", 8),
    Sketcher.Constraint("Horizontal", 9),
    Sketcher.Constraint("Vertical", 10),
    Sketcher.Constraint("Horizontal", 11),
    Sketcher.Constraint("Vertical", 12),
    Sketcher.Constraint("Horizontal", 13),
    Sketcher.Constraint("Vertical", 14),
    Sketcher.Constraint("Horizontal", 15),
    Sketcher.Constraint("Symmetric", 0, 2, 8, 2, -1, 1),
    Sketcher.Constraint("Symmetric", 2, 2, 10, 2, -1, 1),
    Sketcher.Constraint("Symmetric", 4, 2, 12, 2, -1, 1),
    Sketcher.Constraint("Symmetric", 6, 2, 14, 2, -1, 1),
    Sketcher.Constraint("Symmetric", 6, 2, 9, 2, -2),
    Sketcher.Constraint("Horizontal", 5, 2, 10, 2),
    Sketcher.Constraint("Equal", 15, 2),
    Sketcher.Constraint("DistanceX", 1, 1, 1, 2, 3.0),
    Sketcher.Constraint("DistanceX", 3, 2, 3, 1, 12.0),
    Sketcher.Constraint("DistanceY", 0, 1, 0, 2, 44.0),
    Sketcher.Constraint("DistanceX", 6, 2, 8, 2, 34.0),
])
pad7 = doc.addObject("PartDesign::Pad", "Pad006")
body.addObject(pad7)
pad7.Profile = sketch17
pad7.Length = 34.2

sketch18 = doc.addObject("Sketcher::SketchObject", "Sketch017")
body.addObject(sketch18)
sketch18.AttachmentSupport = (doc.XY_Plane, [""])
sketch18.MapMode = "FlatFace"
sketch18.AttachmentOffset = App.Placement(V(0, 0, 39.2), App.Rotation())
sketch18.addGeometry([
    Part.LineSegment(V(24.4, 17, 0), V(24.4, 20.4, 0)),
    Part.LineSegment(V(24.4, 20.4, 0), V(21.5, 22, 0)),
    Part.LineSegment(V(21.5, 22, 0), V(18.6, 20.4, 0)),
    Part.LineSegment(V(18.6, 20.4, 0), V(18.6, 17, 0)),
    Part.LineSegment(V(18.6, 17, 0), V(21.5, 15.3, 0)),
    Part.LineSegment(V(21.5, 15.3, 0), V(24.4, 17, 0)),
    Part.LineSegment(V(-24.4, 17, 0), V(-21.5, 15.3, 0)),
    Part.LineSegment(V(-21.5, 15.3, 0), V(-18.6, 17, 0)),
    Part.LineSegment(V(-18.6, 17, 0), V(-18.6, 20.4, 0)),
    Part.LineSegment(V(-18.6, 20.4, 0), V(-21.5, 22, 0)),
    Part.LineSegment(V(-21.5, 22, 0), V(-24.4, 20.4, 0)),
    Part.LineSegment(V(-24.4, 20.4, 0), V(-24.4, 17, 0)),
    Part.LineSegment(V(21.5, -22, 0), V(24.4, -20.4, 0)),
    Part.LineSegment(V(24.4, -20.4, 0), V(24.4, -17, 0)),
    Part.LineSegment(V(24.4, -17, 0), V(21.5, -15.3, 0)),
    Part.LineSegment(V(21.5, -15.3, 0), V(18.6, -17, 0)),
    Part.LineSegment(V(18.6, -17, 0), V(18.6, -20.4, 0)),
    Part.LineSegment(V(18.6, -20.4, 0), V(21.5, -22, 0)),
    Part.LineSegment(V(-24.4, -17, 0), V(-24.4, -20.4, 0)),
    Part.LineSegment(V(-24.4, -20.4, 0), V(-21.5, -22, 0)),
    Part.LineSegment(V(-21.5, -22, 0), V(-18.6, -20.4, 0)),
    Part.LineSegment(V(-18.6, -20.4, 0), V(-18.6, -17, 0)),
    Part.LineSegment(V(-18.6, -17, 0), V(-21.5, -15.3, 0)),
    Part.LineSegment(V(-21.5, -15.3, 0), V(-24.4, -17, 0)),
], False)
sketch18.addConstraint([
    Sketcher.Constraint("Coincident", 0, 2, 1, 1),
    Sketcher.Constraint("Coincident", 1, 2, 2, 1),
    Sketcher.Constraint("Coincident", 2, 2, 3, 1),
    Sketcher.Constraint("Coincident", 3, 2, 4, 1),
    Sketcher.Constraint("Coincident", 4, 2, 5, 1),
    Sketcher.Constraint("Coincident", 5, 2, 0, 1),
    Sketcher.Constraint("Coincident", 6, 2, 7, 1),
    Sketcher.Constraint("Coincident", 7, 2, 8, 1),
    Sketcher.Constraint("Coincident", 8, 2, 9, 1),
    Sketcher.Constraint("Coincident", 9, 2, 10, 1),
    Sketcher.Constraint("Coincident", 10, 2, 11, 1),
    Sketcher.Constraint("Coincident", 11, 2, 6, 1),
    Sketcher.Constraint("Coincident", 12, 2, 13, 1),
    Sketcher.Constraint("Coincident", 13, 2, 14, 1),
    Sketcher.Constraint("Coincident", 14, 2, 15, 1),
    Sketcher.Constraint("Coincident", 15, 2, 16, 1),
    Sketcher.Constraint("Coincident", 16, 2, 17, 1),
    Sketcher.Constraint("Coincident", 17, 2, 12, 1),
    Sketcher.Constraint("Coincident", 18, 2, 19, 1),
    Sketcher.Constraint("Coincident", 19, 2, 20, 1),
    Sketcher.Constraint("Coincident", 20, 2, 21, 1),
    Sketcher.Constraint("Coincident", 21, 2, 22, 1),
    Sketcher.Constraint("Coincident", 22, 2, 23, 1),
    Sketcher.Constraint("Coincident", 23, 2, 18, 1),
    Sketcher.Constraint("Vertical", 0),
    Sketcher.Constraint("Vertical", 3),
    Sketcher.Constraint("Vertical", 8),
    Sketcher.Constraint("Vertical", 11),
    Sketcher.Constraint("Vertical", 13),
    Sketcher.Constraint("Vertical", 16),
    Sketcher.Constraint("Vertical", 18),
    Sketcher.Constraint("Vertical", 21),
    Sketcher.Constraint("Symmetric", 10, 2, 12, 2, -1, 1),
    Sketcher.Constraint("Symmetric", 6, 2, 14, 2, -1, 1),
    Sketcher.Constraint("Symmetric", 7, 2, 15, 2, -1, 1),
    Sketcher.Constraint("Symmetric", 9, 2, 17, 2, -1, 1),
    Sketcher.Constraint("Symmetric", 0, 2, 18, 2, -1, 1),
    Sketcher.Constraint("Symmetric", 1, 2, 19, 2, -1, 1),
    Sketcher.Constraint("Symmetric", 2, 2, 20, 2, -1, 1),
    Sketcher.Constraint("Symmetric", 4, 2, 22, 2, -1, 1),
    Sketcher.Constraint("Symmetric", 4, 2, 6, 2, -2),
    Sketcher.Constraint("Symmetric", 3, 2, 7, 2, -2),
    Sketcher.Constraint("Symmetric", 1, 2, 9, 2, -2),
    Sketcher.Constraint("Symmetric", 0, 2, 10, 2, -2),
    Sketcher.Constraint("Parallel", 1, 4),
    Sketcher.Constraint("Parallel", 2, 5),
    Sketcher.Constraint("Parallel", 4, 6),
    Sketcher.Constraint("Parallel", 5, 7),
    Sketcher.Constraint("Parallel", 6, 9),
    Sketcher.Constraint("Parallel", 9, 14),
    Sketcher.Constraint("Parallel", 14, 17),
    Sketcher.Constraint("Parallel", 19, 22),
    Sketcher.Constraint("Parallel", 20, 23),
    Sketcher.Constraint("Horizontal", 0, 2, 2, 2),
    Sketcher.Constraint("Horizontal", 3, 2, 5, 2),
    Sketcher.Constraint("Angle", 1, Q("150 deg")),
    Sketcher.Constraint("DistanceX", 6, 2, 4, 2, 43.0),
    Sketcher.Constraint("DistanceX", -1, 1, 0, 2, 24.4),
    Sketcher.Constraint("DistanceY", 12, 2, 5, 2, 37.37),
    Sketcher.Constraint("DistanceY", 0, 1, 0, 2, 3.348632),
])
pocket11 = doc.addObject("PartDesign::Pocket", "Pocket010")
body.addObject(pocket11)
pocket11.Profile = sketch18
pocket11.Length = 2.6
pocket11.Reversed = True

sketch19 = doc.addObject("Sketcher::SketchObject", "Sketch018")
body.addObject(sketch19)
sketch19.AttachmentSupport = (doc.XY_Plane, [""])
sketch19.MapMode = "FlatFace"
sketch19.AttachmentOffset = App.Placement(V(0, 0, 44.2), App.Rotation())
sketch19.addGeometry([
    Part.Circle(V(-21.5, 18.7, 0), V(0, 0, 1), 1.7),
    Part.Circle(V(21.5, 18.7, 0), V(0, 0, 1), 1.7),
    Part.Circle(V(21.5, -18.7, 0), V(0, 0, 1), 1.7),
    Part.Circle(V(-21.5, -18.7, 0), V(0, 0, 1), 1.7),
], False)
sketch19.addConstraint([
    Sketcher.Constraint("Equal", 0, 1),
    Sketcher.Constraint("Equal", 1, 2),
    Sketcher.Constraint("Equal", 2, 3),
    Sketcher.Constraint("Symmetric", 0, 3, 2, 3, -1, 1),
    Sketcher.Constraint("Symmetric", 1, 3, 3, 3, -1, 1),
    Sketcher.Constraint("Symmetric", 0, 3, 1, 3, -2),
    Sketcher.Constraint("Diameter", 0, 3.4),
    Sketcher.Constraint("DistanceX", 0, 3, 1, 3, 43.0),
    Sketcher.Constraint("DistanceY", 2, 3, 1, 3, 37.37),
])
pocket12 = doc.addObject("PartDesign::Pocket", "Pocket011")
body.addObject(pocket12)
pocket12.Profile = sketch19
pocket12.Length = 8
doc.recompute()

fillet7 = doc.addObject("PartDesign::Fillet", "Fillet006")
body.addObject(fillet7)
fillet7.Base = (pocket12, edges_at(pocket12, [
    (9.5, -20.376, 14.2),
    (-9.5, 20.376, 14.2),
    (9.5, 20.376, 14.2),
    (-21.5, 25, 44.2),
    (-21.5, -25, 44.2),
    (21.5, -25, 44.2),
    (21.5, 25, 44.2),
]))
fillet7.Radius = 2
doc.recompute()

fillet8 = doc.addObject("PartDesign::Fillet", "Fillet007")
body.addObject(fillet8)
fillet8.Base = (fillet7, edges_at(fillet7, [
    (-27.5, 0, 44.2),
    (-27.5, -25, 26.1),
    (-27.5, 25, 26.1),
    (-27.5, -24.414, 43.614),
    (-27.5, 24.414, 43.614),
    (-15.5, 25, 26.1),
    (-15.5, -25, 26.1),
    (-15.5, -24.414, 43.614),
    (-15.5, 24.414, 43.614),
    (15.5, 0, 44.2),
    (27.5, 0, 44.2),
    (27.5, 25, 26.1),
    (27.5, -25, 26.1),
    (27.5, 24.414, 43.614),
    (27.5, -24.414, 43.614),
    (15.5, -25, 26.1),
    (15.5, 25, 26.1),
    (15.5, 24.414, 43.614),
    (15.5, -24.414, 43.614),
    (-15.5, 0, 44.2),
]))
fillet8.Radius = 0.5

doc.recompute()
